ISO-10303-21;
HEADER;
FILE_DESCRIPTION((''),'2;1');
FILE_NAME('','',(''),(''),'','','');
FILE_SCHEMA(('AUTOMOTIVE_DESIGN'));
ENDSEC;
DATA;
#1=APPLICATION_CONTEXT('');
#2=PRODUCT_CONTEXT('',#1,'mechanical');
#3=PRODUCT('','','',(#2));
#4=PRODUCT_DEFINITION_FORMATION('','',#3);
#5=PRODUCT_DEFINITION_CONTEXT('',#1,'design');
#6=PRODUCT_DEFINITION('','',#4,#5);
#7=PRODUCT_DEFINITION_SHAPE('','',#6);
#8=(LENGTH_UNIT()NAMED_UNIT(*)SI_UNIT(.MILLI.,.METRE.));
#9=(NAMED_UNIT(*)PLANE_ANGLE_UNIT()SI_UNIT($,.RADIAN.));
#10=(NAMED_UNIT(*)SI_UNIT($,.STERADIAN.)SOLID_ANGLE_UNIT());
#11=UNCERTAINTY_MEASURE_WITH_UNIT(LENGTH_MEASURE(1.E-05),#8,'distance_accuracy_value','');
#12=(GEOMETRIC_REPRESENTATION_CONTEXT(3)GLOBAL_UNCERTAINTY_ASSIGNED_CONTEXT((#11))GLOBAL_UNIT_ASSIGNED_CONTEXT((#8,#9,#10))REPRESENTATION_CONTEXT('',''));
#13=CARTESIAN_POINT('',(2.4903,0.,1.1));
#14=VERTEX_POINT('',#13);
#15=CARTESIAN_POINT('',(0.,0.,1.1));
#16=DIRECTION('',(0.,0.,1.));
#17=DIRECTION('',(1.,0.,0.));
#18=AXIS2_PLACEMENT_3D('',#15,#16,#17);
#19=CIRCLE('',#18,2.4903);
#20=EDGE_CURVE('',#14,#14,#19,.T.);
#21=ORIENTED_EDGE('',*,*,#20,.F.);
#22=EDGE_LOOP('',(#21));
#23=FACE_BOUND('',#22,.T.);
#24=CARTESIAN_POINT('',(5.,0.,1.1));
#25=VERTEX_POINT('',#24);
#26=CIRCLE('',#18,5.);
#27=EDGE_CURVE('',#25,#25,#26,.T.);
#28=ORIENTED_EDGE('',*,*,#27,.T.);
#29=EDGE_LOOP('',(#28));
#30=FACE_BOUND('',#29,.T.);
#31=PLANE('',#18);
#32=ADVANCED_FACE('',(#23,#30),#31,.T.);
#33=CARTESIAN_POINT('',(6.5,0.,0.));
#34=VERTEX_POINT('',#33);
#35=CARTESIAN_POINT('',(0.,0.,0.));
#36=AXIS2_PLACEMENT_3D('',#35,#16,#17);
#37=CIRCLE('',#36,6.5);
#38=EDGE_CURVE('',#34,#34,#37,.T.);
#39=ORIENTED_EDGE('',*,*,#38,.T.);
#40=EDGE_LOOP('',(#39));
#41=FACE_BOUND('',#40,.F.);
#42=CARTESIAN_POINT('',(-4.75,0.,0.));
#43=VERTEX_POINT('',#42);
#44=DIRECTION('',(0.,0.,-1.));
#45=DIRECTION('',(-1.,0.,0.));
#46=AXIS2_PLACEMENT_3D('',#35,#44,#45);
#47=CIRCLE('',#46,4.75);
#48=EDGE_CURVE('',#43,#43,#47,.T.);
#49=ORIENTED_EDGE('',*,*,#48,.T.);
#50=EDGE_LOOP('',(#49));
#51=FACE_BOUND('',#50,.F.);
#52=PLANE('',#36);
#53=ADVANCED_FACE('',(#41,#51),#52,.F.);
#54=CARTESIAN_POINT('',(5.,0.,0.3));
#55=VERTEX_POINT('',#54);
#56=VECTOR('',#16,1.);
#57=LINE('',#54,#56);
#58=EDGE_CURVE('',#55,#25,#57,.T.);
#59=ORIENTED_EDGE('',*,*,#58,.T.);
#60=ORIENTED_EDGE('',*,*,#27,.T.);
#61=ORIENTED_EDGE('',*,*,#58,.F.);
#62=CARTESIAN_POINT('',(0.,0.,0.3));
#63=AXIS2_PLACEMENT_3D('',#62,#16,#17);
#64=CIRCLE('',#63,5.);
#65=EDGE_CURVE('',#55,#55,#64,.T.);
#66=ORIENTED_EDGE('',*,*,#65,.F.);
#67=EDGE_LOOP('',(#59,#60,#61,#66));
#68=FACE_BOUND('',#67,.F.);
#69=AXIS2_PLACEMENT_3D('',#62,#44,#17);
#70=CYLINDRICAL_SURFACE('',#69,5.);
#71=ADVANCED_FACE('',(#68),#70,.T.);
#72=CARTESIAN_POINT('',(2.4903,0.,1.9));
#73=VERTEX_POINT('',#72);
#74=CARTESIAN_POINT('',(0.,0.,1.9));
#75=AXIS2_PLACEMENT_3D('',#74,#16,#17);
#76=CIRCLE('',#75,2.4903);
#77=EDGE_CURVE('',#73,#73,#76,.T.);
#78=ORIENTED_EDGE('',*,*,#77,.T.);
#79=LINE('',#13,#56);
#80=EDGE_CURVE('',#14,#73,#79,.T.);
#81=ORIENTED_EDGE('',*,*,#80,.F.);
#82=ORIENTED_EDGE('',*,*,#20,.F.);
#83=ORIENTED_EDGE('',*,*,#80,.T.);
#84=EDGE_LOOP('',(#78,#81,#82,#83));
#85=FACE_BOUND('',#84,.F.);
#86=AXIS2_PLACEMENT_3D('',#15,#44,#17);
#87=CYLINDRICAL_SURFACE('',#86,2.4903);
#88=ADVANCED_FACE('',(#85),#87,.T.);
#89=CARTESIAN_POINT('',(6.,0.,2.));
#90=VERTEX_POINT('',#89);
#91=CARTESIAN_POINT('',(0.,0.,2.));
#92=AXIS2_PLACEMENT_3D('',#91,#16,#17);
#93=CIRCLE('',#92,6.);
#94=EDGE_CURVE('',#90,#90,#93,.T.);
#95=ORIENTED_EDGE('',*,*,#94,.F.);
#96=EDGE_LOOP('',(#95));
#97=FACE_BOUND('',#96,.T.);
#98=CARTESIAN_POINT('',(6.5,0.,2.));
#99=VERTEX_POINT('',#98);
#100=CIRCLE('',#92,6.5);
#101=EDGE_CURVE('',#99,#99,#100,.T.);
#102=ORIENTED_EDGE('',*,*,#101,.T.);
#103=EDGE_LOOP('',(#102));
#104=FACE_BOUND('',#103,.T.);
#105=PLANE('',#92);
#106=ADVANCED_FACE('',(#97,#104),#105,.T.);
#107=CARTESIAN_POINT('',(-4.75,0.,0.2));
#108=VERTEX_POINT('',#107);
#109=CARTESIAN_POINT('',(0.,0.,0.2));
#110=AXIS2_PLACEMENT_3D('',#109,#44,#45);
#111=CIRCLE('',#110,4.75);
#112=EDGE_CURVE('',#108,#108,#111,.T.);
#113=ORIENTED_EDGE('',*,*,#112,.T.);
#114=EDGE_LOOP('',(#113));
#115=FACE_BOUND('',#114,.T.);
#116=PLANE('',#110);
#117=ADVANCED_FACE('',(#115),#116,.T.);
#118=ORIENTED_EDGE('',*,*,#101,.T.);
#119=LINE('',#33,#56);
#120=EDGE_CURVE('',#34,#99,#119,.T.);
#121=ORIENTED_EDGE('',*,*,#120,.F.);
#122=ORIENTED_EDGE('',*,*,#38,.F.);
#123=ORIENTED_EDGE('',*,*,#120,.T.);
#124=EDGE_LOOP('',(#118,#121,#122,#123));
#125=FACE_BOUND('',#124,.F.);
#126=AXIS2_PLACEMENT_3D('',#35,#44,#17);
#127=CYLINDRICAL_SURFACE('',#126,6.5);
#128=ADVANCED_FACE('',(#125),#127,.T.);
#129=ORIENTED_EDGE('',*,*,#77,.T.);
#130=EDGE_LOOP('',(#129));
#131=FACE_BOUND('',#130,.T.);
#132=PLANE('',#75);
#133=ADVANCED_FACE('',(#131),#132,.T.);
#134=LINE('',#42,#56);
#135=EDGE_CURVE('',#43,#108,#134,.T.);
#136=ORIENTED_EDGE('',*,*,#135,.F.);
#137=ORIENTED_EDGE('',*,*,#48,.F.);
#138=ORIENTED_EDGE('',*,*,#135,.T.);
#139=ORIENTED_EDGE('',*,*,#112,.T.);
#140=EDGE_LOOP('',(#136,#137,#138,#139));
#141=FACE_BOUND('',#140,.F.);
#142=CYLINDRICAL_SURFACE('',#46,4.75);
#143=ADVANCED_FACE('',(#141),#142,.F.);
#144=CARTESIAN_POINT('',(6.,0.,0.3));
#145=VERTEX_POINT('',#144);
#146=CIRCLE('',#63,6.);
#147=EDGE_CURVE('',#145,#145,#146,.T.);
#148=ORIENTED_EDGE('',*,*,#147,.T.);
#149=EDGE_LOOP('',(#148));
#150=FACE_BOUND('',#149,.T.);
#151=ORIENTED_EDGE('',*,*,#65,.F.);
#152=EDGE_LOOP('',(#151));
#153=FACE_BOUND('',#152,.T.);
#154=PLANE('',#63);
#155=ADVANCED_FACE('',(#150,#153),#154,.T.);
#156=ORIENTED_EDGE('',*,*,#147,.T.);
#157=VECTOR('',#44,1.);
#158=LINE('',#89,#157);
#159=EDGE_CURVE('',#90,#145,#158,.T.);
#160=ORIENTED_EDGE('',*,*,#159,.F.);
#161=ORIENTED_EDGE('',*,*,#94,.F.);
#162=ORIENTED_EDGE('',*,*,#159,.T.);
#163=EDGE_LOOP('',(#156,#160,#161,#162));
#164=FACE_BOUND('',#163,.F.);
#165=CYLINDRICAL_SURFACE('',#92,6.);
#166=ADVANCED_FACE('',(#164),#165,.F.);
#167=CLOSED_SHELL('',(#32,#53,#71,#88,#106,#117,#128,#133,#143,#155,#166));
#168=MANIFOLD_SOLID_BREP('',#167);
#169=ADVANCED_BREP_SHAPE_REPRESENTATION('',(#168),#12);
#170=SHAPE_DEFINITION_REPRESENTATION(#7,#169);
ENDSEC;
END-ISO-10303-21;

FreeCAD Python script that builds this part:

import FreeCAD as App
import Part
import Sketcher
from FreeCAD import Vector
Q = App.Units.Quantity

doc = App.newDocument("Part")
body = doc.addObject("PartDesign::Body", "Body")

sketch1 = body.newObject("Sketcher::SketchObject", "Sketch")
sketch1.AttachmentSupport = (doc.getObject("XY_Plane"), [""])
sketch1.MapMode = "FlatFace"
sketch1.addGeometry(Part.Circle(Vector(0, 0, 0), Vector(0, 0, 1), 6), False)
sketch1.addConstraint(Sketcher.Constraint("Coincident", 0, 3, -1, 1))
sketch1.addConstraint(Sketcher.Constraint("Diameter", 0, Q("13 mm")))
pad1 = body.newObject("PartDesign::Pad", "Pad")
pad1.Profile = sketch1
pad1.Length = 2

sketch2 = body.newObject("Sketcher::SketchObject", "Sketch001")
sketch2.AttachmentSupport = (doc.getObject("XY_Plane"), [""])
sketch2.MapMode = "FlatFace"
sketch2.AttachmentOffset = App.Placement(Vector(0, 0, 2), App.Rotation())
sketch2.addGeometry(Part.Circle(Vector(0, 0, 0), Vector(0, 0, 1), 6), False)
sketch2.addConstraint(Sketcher.Constraint("Coincident", 0, 3, -1, 1))
sketch2.addConstraint(Sketcher.Constraint("Diameter", 0, Q("12 mm")))
pocket1 = body.newObject("PartDesign::Pocket", "Pocket")
pocket1.Profile = sketch2
pocket1.Length = 1.7

sketch3 = body.newObject("Sketcher::SketchObject", "Sketch002")
sketch3.AttachmentSupport = (doc.getObject("XY_Plane"), [""])
sketch3.MapMode = "FlatFace"
sketch3.AttachmentOffset = App.Placement(Vector(0, 0, 0.3), App.Rotation())
sketch3.addGeometry(Part.Circle(Vector(0, 0, 0), Vector(0, 0, 1), 5), False)
sketch3.addConstraint(Sketcher.Constraint("Coincident", 0, 3, -1, 1))
sketch3.addConstraint(Sketcher.Constraint("Diameter", 0, Q("10 mm")))
pad2 = body.newObject("PartDesign::Pad", "Pad001")
pad2.Profile = sketch3
pad2.Length = 0.8

sketch4 = body.newObject("Sketcher::SketchObject", "Sketch003")
sketch4.AttachmentSupport = (doc.getObject("XY_Plane"), [""])
sketch4.MapMode = "FlatFace"
sketch4.AttachmentOffset = App.Placement(Vector(0, 0, 1.1), App.Rotation())
sketch4.addGeometry(Part.Circle(Vector(0, 0, 0), Vector(0, 0, 1), 2.5), False)
sketch4.addConstraint(Sketcher.Constraint("Coincident", 0, 3, -1, 1))
sketch4.addConstraint(Sketcher.Constraint("Diameter", 0, Q("4.9806 mm")))
pad3 = body.newObject("PartDesign::Pad", "Pad002")
pad3.Profile = sketch4
pad3.Length = 0.8

sketch5 = body.newObject("Sketcher::SketchObject", "Sketch004")
sketch5.AttachmentSupport = (doc.getObject("XY_Plane"), [""])
sketch5.MapMode = "FlatFace"
sketch5.addGeometry(Part.Circle(Vector(0, 0, 0), Vector(0, 0, 1), 4.8), False)
sketch5.addConstraint(Sketcher.Constraint("Coincident", 0, 3, -1, 1))
sketch5.addConstraint(Sketcher.Constraint("Diameter", 0, Q("9.5 mm")))
pocket2 = body.newObject("PartDesign::Pocket", "Pocket001")
pocket2.Profile = sketch5
pocket2.Length = 0.2
pocket2.Reversed = True

doc.recompute()
